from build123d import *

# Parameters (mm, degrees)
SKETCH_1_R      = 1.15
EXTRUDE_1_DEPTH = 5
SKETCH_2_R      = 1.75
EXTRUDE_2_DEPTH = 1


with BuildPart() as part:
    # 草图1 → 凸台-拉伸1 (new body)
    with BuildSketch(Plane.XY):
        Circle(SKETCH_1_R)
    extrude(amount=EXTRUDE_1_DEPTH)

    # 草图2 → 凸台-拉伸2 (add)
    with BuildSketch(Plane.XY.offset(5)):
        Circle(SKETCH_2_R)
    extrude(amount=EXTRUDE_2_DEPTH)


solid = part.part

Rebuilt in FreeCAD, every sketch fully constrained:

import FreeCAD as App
import Part
import Sketcher

V = App.Vector

doc = App.newDocument("Part")
body = doc.addObject("PartDesign::Body", "Body")

# Sketch on XY plane
sketch1 = body.newObject("Sketcher::SketchObject", "Sketch")
sketch1.AttachmentSupport = (doc.getObject("XY_Plane"), [""])
sketch1.MapMode = "FlatFace"
sketch1.addGeometry(Part.Circle(V(0, 0, 0), V(0, 0, 1), 1.1), False)
sketch1.addConstraint([
    Sketcher.Constraint("Coincident", 0, 3, -1, 1),
    Sketcher.Constraint("Diameter", 0, 2.3),
])
pad1 = body.newObject("PartDesign::Pad", "Pad")
pad1.Profile = sketch1
pad1.Length = 5

# Sketch on XY plane
sketch2 = body.newObject("Sketcher::SketchObject", "Sketch001")
sketch2.AttachmentSupport = (doc.getObject("XY_Plane"), [""])
sketch2.MapMode = "FlatFace"
sketch2.AttachmentOffset = App.Placement(V(0, 0, 5), App.Rotation())
sketch2.addGeometry(Part.Circle(V(0, 0, 0), V(0, 0, 1), 1.8), False)
sketch2.addConstraint([
    Sketcher.Constraint("Coincident", 0, 3, -1, 1),
    Sketcher.Constraint("Diameter", 0, 3.5),
])
pad2 = body.newObject("PartDesign::Pad", "Pad001")
pad2.Profile = sketch2
pad2.Length = 1

doc.recompute()
